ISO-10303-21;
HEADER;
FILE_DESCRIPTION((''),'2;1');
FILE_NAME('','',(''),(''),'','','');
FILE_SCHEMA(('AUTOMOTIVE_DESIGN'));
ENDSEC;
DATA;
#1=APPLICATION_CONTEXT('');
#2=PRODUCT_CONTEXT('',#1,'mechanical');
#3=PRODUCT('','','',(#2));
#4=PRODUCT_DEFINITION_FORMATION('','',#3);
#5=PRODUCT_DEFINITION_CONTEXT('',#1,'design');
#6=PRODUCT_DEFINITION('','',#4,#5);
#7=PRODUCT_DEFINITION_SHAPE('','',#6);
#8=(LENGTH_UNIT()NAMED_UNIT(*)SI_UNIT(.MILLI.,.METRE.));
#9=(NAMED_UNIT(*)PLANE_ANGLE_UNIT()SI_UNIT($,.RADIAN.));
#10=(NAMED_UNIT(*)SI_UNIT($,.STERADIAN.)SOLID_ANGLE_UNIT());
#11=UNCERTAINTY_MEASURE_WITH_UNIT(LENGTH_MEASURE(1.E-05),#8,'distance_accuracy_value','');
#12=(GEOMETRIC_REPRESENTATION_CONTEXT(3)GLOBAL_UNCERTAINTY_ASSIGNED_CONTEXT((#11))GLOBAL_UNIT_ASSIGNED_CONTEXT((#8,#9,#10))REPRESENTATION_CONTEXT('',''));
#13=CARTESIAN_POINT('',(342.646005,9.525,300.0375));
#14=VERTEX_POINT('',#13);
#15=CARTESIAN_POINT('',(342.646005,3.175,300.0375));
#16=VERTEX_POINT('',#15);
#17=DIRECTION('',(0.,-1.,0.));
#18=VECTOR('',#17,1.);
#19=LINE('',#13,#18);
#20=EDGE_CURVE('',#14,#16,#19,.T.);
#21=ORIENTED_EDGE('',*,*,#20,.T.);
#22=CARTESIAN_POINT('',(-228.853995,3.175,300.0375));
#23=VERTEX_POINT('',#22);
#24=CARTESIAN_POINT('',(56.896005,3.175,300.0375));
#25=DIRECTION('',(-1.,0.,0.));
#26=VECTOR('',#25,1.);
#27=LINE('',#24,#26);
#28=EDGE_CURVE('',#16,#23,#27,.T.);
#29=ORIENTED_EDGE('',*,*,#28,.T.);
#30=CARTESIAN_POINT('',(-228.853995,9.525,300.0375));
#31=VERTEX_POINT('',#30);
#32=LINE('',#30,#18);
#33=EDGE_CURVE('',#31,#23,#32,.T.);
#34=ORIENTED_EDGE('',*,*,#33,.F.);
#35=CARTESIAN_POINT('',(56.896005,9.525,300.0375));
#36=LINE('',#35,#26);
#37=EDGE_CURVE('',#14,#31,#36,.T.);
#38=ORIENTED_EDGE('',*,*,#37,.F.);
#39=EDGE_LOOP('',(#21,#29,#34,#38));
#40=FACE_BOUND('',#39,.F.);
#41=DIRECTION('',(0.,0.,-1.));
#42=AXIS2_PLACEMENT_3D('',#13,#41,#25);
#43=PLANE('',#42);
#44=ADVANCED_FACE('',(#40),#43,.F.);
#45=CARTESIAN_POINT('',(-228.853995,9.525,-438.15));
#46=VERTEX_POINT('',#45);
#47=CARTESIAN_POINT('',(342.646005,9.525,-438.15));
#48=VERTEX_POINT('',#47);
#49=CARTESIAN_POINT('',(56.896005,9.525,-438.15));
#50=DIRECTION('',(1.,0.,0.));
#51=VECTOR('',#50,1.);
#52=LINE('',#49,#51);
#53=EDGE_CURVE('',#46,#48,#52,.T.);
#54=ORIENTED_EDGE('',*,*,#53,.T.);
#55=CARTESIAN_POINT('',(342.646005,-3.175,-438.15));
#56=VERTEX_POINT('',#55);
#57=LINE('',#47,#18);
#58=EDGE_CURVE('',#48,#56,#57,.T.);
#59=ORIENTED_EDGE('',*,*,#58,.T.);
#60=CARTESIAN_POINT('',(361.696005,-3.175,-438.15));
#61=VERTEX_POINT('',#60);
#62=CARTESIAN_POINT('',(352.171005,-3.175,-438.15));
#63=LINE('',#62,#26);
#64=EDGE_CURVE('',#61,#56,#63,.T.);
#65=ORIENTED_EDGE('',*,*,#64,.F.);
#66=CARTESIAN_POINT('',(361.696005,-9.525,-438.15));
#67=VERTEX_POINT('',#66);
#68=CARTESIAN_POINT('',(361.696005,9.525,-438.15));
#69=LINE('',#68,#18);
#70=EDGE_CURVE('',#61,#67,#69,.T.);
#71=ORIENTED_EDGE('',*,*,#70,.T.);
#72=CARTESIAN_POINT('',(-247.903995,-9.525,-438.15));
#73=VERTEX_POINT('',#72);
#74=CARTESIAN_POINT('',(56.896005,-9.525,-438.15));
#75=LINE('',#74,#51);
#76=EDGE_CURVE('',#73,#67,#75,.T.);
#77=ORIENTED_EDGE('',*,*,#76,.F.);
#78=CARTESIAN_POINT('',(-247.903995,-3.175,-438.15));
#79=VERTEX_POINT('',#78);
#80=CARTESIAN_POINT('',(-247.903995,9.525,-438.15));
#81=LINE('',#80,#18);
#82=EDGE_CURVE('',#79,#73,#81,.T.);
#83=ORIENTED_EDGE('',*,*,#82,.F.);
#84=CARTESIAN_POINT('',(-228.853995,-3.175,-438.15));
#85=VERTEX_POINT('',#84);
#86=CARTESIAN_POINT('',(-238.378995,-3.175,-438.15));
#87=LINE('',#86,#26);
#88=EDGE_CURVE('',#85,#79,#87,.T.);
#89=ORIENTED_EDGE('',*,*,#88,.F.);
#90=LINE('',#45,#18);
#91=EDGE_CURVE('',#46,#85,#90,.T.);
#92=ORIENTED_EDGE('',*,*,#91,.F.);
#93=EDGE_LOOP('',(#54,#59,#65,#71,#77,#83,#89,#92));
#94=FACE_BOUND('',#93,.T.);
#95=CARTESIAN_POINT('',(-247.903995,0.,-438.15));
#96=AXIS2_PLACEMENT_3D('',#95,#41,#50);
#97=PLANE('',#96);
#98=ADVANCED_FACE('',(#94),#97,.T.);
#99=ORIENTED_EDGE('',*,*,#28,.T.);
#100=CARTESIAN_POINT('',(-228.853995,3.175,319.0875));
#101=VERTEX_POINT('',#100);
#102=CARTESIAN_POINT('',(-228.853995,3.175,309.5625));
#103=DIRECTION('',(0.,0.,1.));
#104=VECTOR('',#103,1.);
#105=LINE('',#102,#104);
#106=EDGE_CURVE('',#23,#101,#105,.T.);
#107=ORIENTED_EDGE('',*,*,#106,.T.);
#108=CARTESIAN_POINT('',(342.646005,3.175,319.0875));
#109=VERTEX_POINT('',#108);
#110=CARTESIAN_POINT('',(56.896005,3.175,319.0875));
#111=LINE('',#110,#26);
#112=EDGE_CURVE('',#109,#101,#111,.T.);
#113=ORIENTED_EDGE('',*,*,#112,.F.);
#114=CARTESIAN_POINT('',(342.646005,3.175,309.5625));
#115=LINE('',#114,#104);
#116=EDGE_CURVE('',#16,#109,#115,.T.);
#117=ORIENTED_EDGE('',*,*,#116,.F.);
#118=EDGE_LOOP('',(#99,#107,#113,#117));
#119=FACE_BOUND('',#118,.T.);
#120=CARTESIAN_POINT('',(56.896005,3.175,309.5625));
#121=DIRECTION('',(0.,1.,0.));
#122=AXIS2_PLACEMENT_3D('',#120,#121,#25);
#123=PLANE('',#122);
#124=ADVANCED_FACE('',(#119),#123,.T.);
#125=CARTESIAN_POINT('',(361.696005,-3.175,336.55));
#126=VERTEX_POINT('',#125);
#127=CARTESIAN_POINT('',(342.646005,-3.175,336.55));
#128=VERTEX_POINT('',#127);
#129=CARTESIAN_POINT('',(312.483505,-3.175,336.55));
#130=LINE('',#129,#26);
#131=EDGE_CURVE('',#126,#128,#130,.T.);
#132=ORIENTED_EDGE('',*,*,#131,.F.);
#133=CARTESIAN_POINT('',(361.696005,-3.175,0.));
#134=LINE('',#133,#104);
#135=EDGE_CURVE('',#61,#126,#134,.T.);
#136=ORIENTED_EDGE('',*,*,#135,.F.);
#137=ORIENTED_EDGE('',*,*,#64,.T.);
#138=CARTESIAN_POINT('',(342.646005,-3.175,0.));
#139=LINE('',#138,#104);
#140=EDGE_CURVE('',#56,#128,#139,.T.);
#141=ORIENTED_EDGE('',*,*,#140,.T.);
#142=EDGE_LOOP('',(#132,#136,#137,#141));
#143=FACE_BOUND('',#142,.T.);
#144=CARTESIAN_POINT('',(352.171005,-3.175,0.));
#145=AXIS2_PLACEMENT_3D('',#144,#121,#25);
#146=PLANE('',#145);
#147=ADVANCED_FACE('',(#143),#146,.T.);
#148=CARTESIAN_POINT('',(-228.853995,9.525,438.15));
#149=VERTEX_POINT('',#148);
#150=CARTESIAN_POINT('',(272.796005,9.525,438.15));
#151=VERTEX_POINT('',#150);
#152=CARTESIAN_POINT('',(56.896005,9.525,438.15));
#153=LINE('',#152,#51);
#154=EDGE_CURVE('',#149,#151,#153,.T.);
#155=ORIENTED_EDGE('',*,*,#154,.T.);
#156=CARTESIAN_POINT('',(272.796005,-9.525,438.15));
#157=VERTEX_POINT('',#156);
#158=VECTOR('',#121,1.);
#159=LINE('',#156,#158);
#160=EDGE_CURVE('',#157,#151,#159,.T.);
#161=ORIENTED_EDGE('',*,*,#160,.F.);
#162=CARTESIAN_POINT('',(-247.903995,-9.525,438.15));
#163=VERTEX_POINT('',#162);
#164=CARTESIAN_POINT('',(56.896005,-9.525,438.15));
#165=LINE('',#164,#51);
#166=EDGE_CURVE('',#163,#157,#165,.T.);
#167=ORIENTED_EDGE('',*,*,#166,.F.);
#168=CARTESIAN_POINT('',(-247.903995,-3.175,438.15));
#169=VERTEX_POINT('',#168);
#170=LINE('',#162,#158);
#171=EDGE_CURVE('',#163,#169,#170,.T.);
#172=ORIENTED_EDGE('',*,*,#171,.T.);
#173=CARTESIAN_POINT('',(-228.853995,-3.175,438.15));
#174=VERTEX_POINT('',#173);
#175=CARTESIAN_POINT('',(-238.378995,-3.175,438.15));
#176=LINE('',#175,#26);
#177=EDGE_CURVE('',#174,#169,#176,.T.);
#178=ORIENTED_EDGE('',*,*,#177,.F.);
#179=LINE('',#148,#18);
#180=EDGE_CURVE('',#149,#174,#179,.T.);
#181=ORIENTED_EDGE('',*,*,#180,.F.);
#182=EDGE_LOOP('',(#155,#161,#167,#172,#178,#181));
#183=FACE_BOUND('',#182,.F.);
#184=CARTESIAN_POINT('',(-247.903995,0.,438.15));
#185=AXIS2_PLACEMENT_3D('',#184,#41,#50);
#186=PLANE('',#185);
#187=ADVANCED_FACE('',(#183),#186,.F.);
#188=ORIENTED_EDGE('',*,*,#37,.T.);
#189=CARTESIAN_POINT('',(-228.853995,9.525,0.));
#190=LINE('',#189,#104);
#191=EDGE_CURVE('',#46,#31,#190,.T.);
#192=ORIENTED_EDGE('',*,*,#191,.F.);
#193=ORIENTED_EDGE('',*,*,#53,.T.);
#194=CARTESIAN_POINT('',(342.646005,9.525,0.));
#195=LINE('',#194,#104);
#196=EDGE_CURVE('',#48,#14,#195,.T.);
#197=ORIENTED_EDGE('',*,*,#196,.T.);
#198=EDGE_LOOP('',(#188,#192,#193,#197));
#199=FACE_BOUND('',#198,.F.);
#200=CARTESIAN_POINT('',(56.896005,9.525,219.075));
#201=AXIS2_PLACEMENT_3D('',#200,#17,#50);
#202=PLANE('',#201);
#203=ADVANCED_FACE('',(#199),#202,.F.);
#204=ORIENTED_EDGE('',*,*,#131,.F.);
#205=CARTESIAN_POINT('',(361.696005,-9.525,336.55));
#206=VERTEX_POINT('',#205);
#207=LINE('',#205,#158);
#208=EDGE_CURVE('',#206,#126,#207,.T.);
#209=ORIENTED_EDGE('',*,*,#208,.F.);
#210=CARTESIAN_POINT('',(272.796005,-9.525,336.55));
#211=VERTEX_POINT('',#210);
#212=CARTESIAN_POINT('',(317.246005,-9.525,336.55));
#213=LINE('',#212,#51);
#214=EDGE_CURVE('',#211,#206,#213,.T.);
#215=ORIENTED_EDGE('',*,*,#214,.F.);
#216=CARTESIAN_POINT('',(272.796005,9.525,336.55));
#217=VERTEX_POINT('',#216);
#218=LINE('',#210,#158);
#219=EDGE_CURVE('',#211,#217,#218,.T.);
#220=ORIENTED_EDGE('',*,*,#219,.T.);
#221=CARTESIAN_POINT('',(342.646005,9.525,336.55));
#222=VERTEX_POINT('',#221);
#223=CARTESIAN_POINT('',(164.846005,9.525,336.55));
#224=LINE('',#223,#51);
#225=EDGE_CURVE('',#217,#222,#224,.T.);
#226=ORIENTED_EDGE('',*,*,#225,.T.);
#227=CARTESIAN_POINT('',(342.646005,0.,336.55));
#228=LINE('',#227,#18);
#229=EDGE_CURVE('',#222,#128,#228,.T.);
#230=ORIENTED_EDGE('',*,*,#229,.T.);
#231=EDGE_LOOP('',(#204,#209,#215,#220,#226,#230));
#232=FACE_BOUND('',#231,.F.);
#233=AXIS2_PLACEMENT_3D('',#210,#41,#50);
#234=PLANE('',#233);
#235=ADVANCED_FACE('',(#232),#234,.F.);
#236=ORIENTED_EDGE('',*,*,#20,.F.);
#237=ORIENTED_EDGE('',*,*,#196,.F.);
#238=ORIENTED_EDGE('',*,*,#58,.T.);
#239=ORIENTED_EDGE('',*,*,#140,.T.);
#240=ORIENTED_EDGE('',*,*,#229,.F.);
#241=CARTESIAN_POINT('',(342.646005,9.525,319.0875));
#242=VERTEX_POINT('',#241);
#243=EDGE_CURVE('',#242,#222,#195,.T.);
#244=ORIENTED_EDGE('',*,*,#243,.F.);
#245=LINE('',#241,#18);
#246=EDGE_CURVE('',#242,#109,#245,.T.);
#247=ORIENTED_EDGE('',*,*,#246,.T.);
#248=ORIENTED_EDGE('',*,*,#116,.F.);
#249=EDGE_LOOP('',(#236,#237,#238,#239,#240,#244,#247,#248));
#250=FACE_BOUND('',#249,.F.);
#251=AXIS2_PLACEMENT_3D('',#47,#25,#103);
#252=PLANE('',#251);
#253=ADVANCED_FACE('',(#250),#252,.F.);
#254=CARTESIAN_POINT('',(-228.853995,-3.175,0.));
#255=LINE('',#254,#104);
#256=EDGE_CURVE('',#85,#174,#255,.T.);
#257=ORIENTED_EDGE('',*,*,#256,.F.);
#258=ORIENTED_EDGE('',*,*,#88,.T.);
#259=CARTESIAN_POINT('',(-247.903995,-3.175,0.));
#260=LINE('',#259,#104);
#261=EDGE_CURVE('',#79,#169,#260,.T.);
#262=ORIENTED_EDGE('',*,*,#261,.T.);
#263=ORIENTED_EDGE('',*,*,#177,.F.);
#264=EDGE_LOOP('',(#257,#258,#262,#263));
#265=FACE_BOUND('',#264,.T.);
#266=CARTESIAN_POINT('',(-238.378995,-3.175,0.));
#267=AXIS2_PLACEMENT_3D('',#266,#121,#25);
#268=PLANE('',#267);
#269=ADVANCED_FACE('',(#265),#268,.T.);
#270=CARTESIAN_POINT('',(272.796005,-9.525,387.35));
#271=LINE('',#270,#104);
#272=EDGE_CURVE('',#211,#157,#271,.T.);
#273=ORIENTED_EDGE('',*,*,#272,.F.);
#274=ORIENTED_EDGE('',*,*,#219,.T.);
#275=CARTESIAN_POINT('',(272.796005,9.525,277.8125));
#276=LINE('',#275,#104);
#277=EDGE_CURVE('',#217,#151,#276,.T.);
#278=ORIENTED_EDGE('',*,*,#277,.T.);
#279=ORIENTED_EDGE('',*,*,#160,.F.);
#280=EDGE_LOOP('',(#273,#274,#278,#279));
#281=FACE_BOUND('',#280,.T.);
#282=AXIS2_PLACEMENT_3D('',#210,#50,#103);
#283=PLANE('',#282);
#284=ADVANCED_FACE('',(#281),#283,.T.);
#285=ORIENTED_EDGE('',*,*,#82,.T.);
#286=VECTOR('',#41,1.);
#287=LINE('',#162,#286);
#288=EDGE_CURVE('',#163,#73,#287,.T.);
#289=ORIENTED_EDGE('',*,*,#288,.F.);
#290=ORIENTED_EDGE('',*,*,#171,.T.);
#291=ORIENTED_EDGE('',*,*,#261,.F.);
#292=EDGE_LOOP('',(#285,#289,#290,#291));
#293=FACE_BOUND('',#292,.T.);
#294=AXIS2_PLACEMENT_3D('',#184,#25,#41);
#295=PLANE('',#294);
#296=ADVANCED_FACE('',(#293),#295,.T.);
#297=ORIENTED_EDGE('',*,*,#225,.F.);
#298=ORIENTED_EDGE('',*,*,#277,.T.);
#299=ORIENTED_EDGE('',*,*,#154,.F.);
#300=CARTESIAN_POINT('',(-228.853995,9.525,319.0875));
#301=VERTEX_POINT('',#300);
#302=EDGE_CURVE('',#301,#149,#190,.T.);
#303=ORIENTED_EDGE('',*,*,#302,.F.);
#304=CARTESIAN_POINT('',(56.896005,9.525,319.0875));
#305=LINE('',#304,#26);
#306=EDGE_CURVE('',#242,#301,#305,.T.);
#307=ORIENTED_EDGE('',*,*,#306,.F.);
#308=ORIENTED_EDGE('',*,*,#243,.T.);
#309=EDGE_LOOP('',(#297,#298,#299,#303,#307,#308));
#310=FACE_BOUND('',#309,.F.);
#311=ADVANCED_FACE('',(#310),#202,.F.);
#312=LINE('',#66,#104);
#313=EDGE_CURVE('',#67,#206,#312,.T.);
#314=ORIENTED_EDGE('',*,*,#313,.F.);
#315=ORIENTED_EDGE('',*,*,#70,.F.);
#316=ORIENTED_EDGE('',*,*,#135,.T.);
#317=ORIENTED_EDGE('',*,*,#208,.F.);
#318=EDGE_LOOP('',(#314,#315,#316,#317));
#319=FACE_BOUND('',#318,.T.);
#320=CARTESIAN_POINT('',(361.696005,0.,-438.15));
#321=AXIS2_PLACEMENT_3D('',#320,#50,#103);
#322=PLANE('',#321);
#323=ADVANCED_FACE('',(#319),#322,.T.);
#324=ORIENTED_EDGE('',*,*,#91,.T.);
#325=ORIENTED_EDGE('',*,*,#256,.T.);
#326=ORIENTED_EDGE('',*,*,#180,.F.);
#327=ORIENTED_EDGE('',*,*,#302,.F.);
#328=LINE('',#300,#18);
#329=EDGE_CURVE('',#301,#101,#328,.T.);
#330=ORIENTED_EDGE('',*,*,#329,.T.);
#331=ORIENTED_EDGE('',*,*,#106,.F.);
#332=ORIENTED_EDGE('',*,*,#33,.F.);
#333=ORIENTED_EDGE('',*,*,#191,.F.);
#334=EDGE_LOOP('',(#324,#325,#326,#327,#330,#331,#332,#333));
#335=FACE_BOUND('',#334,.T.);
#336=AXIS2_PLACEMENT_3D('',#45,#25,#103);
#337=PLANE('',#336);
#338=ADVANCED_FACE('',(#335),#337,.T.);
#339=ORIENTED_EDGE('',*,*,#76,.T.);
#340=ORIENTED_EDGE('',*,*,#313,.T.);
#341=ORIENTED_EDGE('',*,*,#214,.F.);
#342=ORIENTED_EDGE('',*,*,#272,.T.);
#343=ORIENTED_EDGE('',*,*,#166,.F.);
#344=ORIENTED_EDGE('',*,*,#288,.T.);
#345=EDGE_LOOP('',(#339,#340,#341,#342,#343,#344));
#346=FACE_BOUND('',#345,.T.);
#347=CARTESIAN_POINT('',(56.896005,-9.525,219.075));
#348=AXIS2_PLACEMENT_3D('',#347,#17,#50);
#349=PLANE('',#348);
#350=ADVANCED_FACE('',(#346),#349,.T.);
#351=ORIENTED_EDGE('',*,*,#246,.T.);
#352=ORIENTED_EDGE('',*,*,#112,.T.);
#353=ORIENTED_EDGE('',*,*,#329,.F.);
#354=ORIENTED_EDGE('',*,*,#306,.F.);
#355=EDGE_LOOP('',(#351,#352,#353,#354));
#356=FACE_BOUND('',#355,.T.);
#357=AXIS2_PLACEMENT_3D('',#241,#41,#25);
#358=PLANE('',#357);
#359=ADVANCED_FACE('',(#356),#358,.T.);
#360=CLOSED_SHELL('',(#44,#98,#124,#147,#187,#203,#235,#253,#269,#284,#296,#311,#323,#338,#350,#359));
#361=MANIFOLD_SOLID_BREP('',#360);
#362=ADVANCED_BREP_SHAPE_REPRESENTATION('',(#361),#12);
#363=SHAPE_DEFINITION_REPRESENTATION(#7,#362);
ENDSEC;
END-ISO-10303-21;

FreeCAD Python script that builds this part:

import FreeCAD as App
import Part
import Sketcher
Q = App.Units.Quantity


def add_polygon(sketch, points):
    """Adds a closed chain of lines whose ends are joined by coincident constraints."""
    first, n = sketch.GeometryCount, len(points)
    for a, b in zip(points, points[1:] + points[:1]):
        sketch.addGeometry(Part.LineSegment(App.Vector(*a, 0), App.Vector(*b, 0)), False)
    for i in range(n):
        sketch.addConstraint(Sketcher.Constraint("Coincident", first + i, 2, first + (i + 1) % n, 1))

doc = App.newDocument("Part")
body = doc.addObject("PartDesign::Body", "Body")

sketch1 = body.newObject("Sketcher::SketchObject", "Sketch")
sketch1.AttachmentSupport = (doc.getObject("XZ_Plane"), [""])
sketch1.MapMode = "FlatFace"
add_polygon(sketch1, [(-248, 438), (-248, -438), (362, -438), (362, 438)])
sketch1.addConstraint([
    Sketcher.Constraint("Vertical", 0),
    Sketcher.Constraint("Horizontal", 1),
    Sketcher.Constraint("Vertical", 2),
    Sketcher.Constraint("Horizontal", 3),
    Sketcher.Constraint("DistanceX", 1, 1, 1, 2, Q("24 in")),
    Sketcher.Constraint("DistanceY", 0, 2, 0, 1, Q("34.5 in")),
    Sketcher.Constraint("DistanceX", 0, 2, -1, 1, Q("9.7599998 in")),
    Sketcher.Constraint("DistanceY", 0, 2, -1, 1, Q("17.25 in")),
])
pad1 = body.newObject("PartDesign::Pad", "Pad")
pad1.Profile = sketch1
pad1.Length = Q("0.75 in")
pad1.Midplane = True

sketch2 = body.newObject("Sketcher::SketchObject", "Sketch001")
sketch2.AttachmentSupport = (doc.getObject("XZ_Plane"), [""])
sketch2.MapMode = "FlatFace"
sketch2.AttachmentOffset = App.Placement(App.Vector(0, 0, -0.375 * 25.4), App.Rotation())
add_polygon(sketch2, [(362, 438), (362, -438), (343, -438), (343, 438)])
add_polygon(sketch2, [(-229, 438), (-229, -438), (-248, -438), (-248, 438)])
sketch2.addConstraint([
    Sketcher.Constraint("Vertical", 0),
    Sketcher.Constraint("Horizontal", 1),
    Sketcher.Constraint("Vertical", 2),
    Sketcher.Constraint("Horizontal", 3),
    Sketcher.Constraint("Vertical", 4),
    Sketcher.Constraint("Horizontal", 5),
    Sketcher.Constraint("Vertical", 6),
    Sketcher.Constraint("Horizontal", 7),
    Sketcher.Constraint("Horizontal", 1, 2, 4, 2),
    Sketcher.Constraint("Horizontal", 3, 2, 6, 2),
    Sketcher.Constraint("Equal", 3, 5),
    Sketcher.Constraint("DistanceY", 0, 2, 0, 1, Q("34.5 in")),
    Sketcher.Constraint("DistanceX", 5, 2, 0, 2, Q("24 in")),
    Sketcher.Constraint("DistanceX", 1, 2, 1, 1, Q("0.75 in")),
    Sketcher.Constraint("DistanceX", -1, 1, 0, 2, Q("14.2400002 in")),
    Sketcher.Constraint("DistanceY", 0, 2, -1, 1, Q("17.25 in")),
])
pocket1 = body.newObject("PartDesign::Pocket", "Pocket")
pocket1.Profile = sketch2
pocket1.Length = Q("0.5 in")
pocket1.Reversed = True

sketch3 = body.newObject("Sketcher::SketchObject", "Sketch002")
sketch3.AttachmentSupport = (doc.getObject("XZ_Plane"), [""])
sketch3.MapMode = "FlatFace"
sketch3.AttachmentOffset = App.Placement(App.Vector(0, 0, -0.375 * 25.4), App.Rotation())
add_polygon(sketch3, [(343, 319), (343, 300), (-229, 300), (-229, 319)])
sketch3.addConstraint([
    Sketcher.Constraint("Vertical", 0),
    Sketcher.Constraint("Horizontal", 1),
    Sketcher.Constraint("Vertical", 2),
    Sketcher.Constraint("Horizontal", 3),
    Sketcher.Constraint("DistanceX", 1, 2, 1, 1, Q("22.5 in")),
    Sketcher.Constraint("DistanceY", 0, 2, 0, 1, Q("0.75 in")),
    Sketcher.Constraint("DistanceX", -1, 1, 0, 2, Q("13.4900002 in")),
    Sketcher.Constraint("DistanceY", -1, 1, 0, 2, Q("11.8125 in")),
])
pocket2 = body.newObject("PartDesign::Pocket", "Pocket001")
pocket2.Profile = sketch3
pocket2.Length = Q("0.25 in")
pocket2.Reversed = True

sketch4 = body.newObject("Sketcher::SketchObject", "Sketch003")
sketch4.AttachmentSupport = (doc.getObject("XZ_Plane"), [""])
sketch4.MapMode = "FlatFace"
sketch4.AttachmentOffset = App.Placement(App.Vector(0, 0, 0.375 * 25.4), App.Rotation())
add_polygon(sketch4, [(273, 438), (273, 337), (362, 337), (362, 438)])
sketch4.addConstraint([
    Sketcher.Constraint("Vertical", 0),
    Sketcher.Constraint("Horizontal", 1),
    Sketcher.Constraint("Vertical", 2),
    Sketcher.Constraint("Horizontal", 3),
    Sketcher.Constraint("DistanceY", 0, 2, 0, 1, Q("4 in")),
    Sketcher.Constraint("DistanceX", 1, 1, 1, 2, Q("3.5 in")),
    Sketcher.Constraint("DistanceX", -1, 1, 0, 2, Q("10.7400002 in")),
    Sketcher.Constraint("DistanceY", -1, 1, 0, 2, Q("13.25 in")),
])
pocket3 = body.newObject("PartDesign::Pocket", "Pocket002")
pocket3.Profile = sketch4
pocket3.Type = "ThroughAll"

doc.recompute()
